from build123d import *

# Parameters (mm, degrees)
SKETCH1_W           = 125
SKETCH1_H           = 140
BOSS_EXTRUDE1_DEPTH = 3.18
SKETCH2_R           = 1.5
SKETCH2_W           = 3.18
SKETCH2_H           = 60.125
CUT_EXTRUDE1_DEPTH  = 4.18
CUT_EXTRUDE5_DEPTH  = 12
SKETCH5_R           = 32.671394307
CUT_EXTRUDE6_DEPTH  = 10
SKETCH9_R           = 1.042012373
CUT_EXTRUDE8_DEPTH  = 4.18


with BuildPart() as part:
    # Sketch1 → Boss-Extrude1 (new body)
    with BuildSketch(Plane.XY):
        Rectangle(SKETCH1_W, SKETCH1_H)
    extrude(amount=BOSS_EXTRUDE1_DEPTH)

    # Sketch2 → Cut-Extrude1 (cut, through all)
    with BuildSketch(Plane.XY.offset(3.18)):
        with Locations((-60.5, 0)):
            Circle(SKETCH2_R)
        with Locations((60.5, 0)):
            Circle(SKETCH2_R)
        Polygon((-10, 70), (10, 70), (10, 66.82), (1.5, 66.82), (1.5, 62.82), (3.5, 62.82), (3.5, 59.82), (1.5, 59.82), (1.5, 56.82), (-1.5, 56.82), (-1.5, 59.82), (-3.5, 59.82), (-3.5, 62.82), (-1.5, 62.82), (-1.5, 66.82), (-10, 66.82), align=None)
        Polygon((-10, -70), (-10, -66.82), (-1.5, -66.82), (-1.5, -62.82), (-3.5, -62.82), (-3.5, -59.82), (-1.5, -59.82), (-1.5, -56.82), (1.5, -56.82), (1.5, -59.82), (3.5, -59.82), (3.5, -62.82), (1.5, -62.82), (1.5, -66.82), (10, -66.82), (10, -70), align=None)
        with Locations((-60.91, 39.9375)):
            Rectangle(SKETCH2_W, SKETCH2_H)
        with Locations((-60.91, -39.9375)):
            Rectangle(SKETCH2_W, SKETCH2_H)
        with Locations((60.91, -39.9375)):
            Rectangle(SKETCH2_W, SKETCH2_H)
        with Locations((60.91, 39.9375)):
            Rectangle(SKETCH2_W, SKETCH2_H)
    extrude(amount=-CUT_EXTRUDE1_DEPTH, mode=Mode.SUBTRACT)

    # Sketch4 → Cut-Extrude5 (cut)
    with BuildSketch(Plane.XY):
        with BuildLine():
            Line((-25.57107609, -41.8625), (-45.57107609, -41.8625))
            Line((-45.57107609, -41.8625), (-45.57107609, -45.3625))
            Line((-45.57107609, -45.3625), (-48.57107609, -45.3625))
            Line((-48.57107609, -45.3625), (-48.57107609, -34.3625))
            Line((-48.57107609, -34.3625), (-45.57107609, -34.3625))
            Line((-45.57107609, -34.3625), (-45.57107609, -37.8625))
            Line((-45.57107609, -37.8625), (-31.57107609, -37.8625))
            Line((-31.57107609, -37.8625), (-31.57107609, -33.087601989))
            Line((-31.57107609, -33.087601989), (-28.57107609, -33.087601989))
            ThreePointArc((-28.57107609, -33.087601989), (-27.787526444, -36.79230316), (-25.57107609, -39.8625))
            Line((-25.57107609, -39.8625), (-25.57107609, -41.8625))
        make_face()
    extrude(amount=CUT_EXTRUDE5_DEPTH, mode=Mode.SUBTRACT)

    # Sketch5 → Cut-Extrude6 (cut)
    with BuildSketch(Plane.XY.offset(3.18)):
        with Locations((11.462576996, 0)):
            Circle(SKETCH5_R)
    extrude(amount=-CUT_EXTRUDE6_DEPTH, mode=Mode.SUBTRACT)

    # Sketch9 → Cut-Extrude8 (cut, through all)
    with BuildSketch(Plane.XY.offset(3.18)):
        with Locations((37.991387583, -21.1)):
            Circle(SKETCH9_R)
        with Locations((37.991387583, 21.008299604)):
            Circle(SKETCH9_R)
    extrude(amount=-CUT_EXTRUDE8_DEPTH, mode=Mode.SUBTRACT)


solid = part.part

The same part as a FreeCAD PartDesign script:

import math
import FreeCAD as App
import Part
import Sketcher
Q = App.Units.Quantity

doc = App.newDocument("Part")
body = doc.addObject("PartDesign::Body", "Body")

sketch1 = body.newObject("Sketcher::SketchObject", "Sketch")
sketch1.AttachmentSupport = (doc.getObject("XY_Plane"), [""])
sketch1.MapMode = "FlatFace"
sketch1.addGeometry([
    Part.LineSegment(App.Vector(-62, 70, 0), App.Vector(-62, -70, 0)),
    Part.LineSegment(App.Vector(-62, -70, 0), App.Vector(62, -70, 0)),
    Part.LineSegment(App.Vector(62, -70, 0), App.Vector(62, 70, 0)),
    Part.LineSegment(App.Vector(62, 70, 0), App.Vector(-62, 70, 0)),
], False)
sketch1.addConstraint([
    Sketcher.Constraint("Coincident", 0, 2, 1, 1),
    Sketcher.Constraint("Coincident", 1, 2, 2, 1),
    Sketcher.Constraint("Coincident", 2, 2, 3, 1),
    Sketcher.Constraint("Coincident", 3, 2, 0, 1),
    Sketcher.Constraint("Vertical", 0),
    Sketcher.Constraint("Horizontal", 1),
    Sketcher.Constraint("Vertical", 2),
    Sketcher.Constraint("Horizontal", 3),
    Sketcher.Constraint("Symmetric", 0, 2, 2, 2, -1, 1),
    Sketcher.Constraint("DistanceX", 1, 1, 1, 2, Q("125 mm")),
    Sketcher.Constraint("DistanceY", 0, 2, 0, 1, Q("140 mm")),
])
pad1 = body.newObject("PartDesign::Pad", "Pad")
pad1.Profile = sketch1
pad1.Length = 3.18

sketch2 = body.newObject("Sketcher::SketchObject", "Sketch001")
sketch2.AttachmentSupport = (doc.getObject("XY_Plane"), [""])
sketch2.MapMode = "FlatFace"
sketch2.AttachmentOffset = App.Placement(App.Vector(0, 0, 3.18), App.Rotation())
sketch2.addGeometry([
    Part.Circle(App.Vector(-60.5, 0, 0), App.Vector(0, 0, 1), 1.5),
    Part.Circle(App.Vector(60.5, 0, 0), App.Vector(0, 0, 1), 1.5),
    Part.LineSegment(App.Vector(10, 70, 0), App.Vector(-10, 70, 0)),
    Part.LineSegment(App.Vector(-10, 70, 0), App.Vector(-10, 66.8, 0)),
    Part.LineSegment(App.Vector(-10, 66.8, 0), App.Vector(-1.5, 66.8, 0)),
    Part.LineSegment(App.Vector(-1.5, 66.8, 0), App.Vector(-1.5, 62.8, 0)),
    Part.LineSegment(App.Vector(-1.5, 62.8, 0), App.Vector(-3.5, 62.8, 0)),
    Part.LineSegment(App.Vector(-3.5, 62.8, 0), App.Vector(-3.5, 59.8, 0)),
    Part.LineSegment(App.Vector(-3.5, 59.8, 0), App.Vector(-1.5, 59.8, 0)),
    Part.LineSegment(App.Vector(-1.5, 59.8, 0), App.Vector(-1.5, 56.8, 0)),
    Part.LineSegment(App.Vector(-1.5, 56.8, 0), App.Vector(1.5, 56.8, 0)),
    Part.LineSegment(App.Vector(1.5, 56.8, 0), App.Vector(1.5, 59.8, 0)),
    Part.LineSegment(App.Vector(1.5, 59.8, 0), App.Vector(3.5, 59.8, 0)),
    Part.LineSegment(App.Vector(3.5, 59.8, 0), App.Vector(3.5, 62.8, 0)),
    Part.LineSegment(App.Vector(3.5, 62.8, 0), App.Vector(1.5, 62.8, 0)),
    Part.LineSegment(App.Vector(1.5, 62.8, 0), App.Vector(1.5, 66.8, 0)),
    Part.LineSegment(App.Vector(1.5, 66.8, 0), App.Vector(10, 66.8, 0)),
    Part.LineSegment(App.Vector(10, 66.8, 0), App.Vector(10, 70, 0)),
    Part.LineSegment(App.Vector(-10, -66.8, 0), App.Vector(-10, -70, 0)),
    Part.LineSegment(App.Vector(-10, -70, 0), App.Vector(10, -70, 0)),
    Part.LineSegment(App.Vector(10, -70, 0), App.Vector(10, -66.8, 0)),
    Part.LineSegment(App.Vector(10, -66.8, 0), App.Vector(1.5, -66.8, 0)),
    Part.LineSegment(App.Vector(1.5, -66.8, 0), App.Vector(1.5, -62.8, 0)),
    Part.LineSegment(App.Vector(1.5, -62.8, 0), App.Vector(3.5, -62.8, 0)),
    Part.LineSegment(App.Vector(3.5, -62.8, 0), App.Vector(3.5, -59.8, 0)),
    Part.LineSegment(App.Vector(3.5, -59.8, 0), App.Vector(1.5, -59.8, 0)),
    Part.LineSegment(App.Vector(1.5, -59.8, 0), App.Vector(1.5, -56.8, 0)),
    Part.LineSegment(App.Vector(1.5, -56.8, 0), App.Vector(-1.5, -56.8, 0)),
    Part.LineSegment(App.Vector(-1.5, -56.8, 0), App.Vector(-1.5, -59.8, 0)),
    Part.LineSegment(App.Vector(-1.5, -59.8, 0), App.Vector(-3.5, -59.8, 0)),
    Part.LineSegment(App.Vector(-3.5, -59.8, 0), App.Vector(-3.5, -62.8, 0)),
    Part.LineSegment(App.Vector(-3.5, -62.8, 0), App.Vector(-1.5, -62.8, 0)),
    Part.LineSegment(App.Vector(-1.5, -62.8, 0), App.Vector(-1.5, -66.8, 0)),
    Part.LineSegment(App.Vector(-1.5, -66.8, 0), App.Vector(-10, -66.8, 0)),
    Part.LineSegment(App.Vector(-62.5, 70, 0), App.Vector(-62.5, 9.9, 0)),
    Part.LineSegment(App.Vector(-62.5, 9.9, 0), App.Vector(-59.3, 9.9, 0)),
    Part.LineSegment(App.Vector(-59.3, 9.9, 0), App.Vector(-59.3, 70, 0)),
    Part.LineSegment(App.Vector(-59.3, 70, 0), App.Vector(-62.5, 70, 0)),
    Part.LineSegment(App.Vector(-62.5, -9.9, 0), App.Vector(-62.5, -70, 0)),
    Part.LineSegment(App.Vector(-62.5, -70, 0), App.Vector(-59.3, -70, 0)),
    Part.LineSegment(App.Vector(-59.3, -70, 0), App.Vector(-59.3, -9.9, 0)),
    Part.LineSegment(App.Vector(-59.3, -9.9, 0), App.Vector(-62.5, -9.9, 0)),
    Part.LineSegment(App.Vector(59.3, -9.9, 0), App.Vector(59.3, -70, 0)),
    Part.LineSegment(App.Vector(59.3, -70, 0), App.Vector(62.5, -70, 0)),
    Part.LineSegment(App.Vector(62.5, -70, 0), App.Vector(62.5, -9.9, 0)),
    Part.LineSegment(App.Vector(62.5, -9.9, 0), App.Vector(59.3, -9.9, 0)),
    Part.LineSegment(App.Vector(59.3, 70, 0), App.Vector(59.3, 9.9, 0)),
    Part.LineSegment(App.Vector(59.3, 9.9, 0), App.Vector(62.5, 9.9, 0)),
    Part.LineSegment(App.Vector(62.5, 9.9, 0), App.Vector(62.5, 70, 0)),
    Part.LineSegment(App.Vector(62.5, 70, 0), App.Vector(59.3, 70, 0)),
], False)
sketch2.addConstraint([
    Sketcher.Constraint("Coincident", 2, 2, 3, 1),
    Sketcher.Constraint("Coincident", 3, 2, 4, 1),
    Sketcher.Constraint("Coincident", 4, 2, 5, 1),
    Sketcher.Constraint("Coincident", 5, 2, 6, 1),
    Sketcher.Constraint("Coincident", 6, 2, 7, 1),
    Sketcher.Constraint("Coincident", 7, 2, 8, 1),
    Sketcher.Constraint("Coincident", 8, 2, 9, 1),
    Sketcher.Constraint("Coincident", 9, 2, 10, 1),
    Sketcher.Constraint("Coincident", 10, 2, 11, 1),
    Sketcher.Constraint("Coincident", 11, 2, 12, 1),
    Sketcher.Constraint("Coincident", 12, 2, 13, 1),
    Sketcher.Constraint("Coincident", 13, 2, 14, 1),
    Sketcher.Constraint("Coincident", 14, 2, 15, 1),
    Sketcher.Constraint("Coincident", 15, 2, 16, 1),
    Sketcher.Constraint("Coincident", 16, 2, 17, 1),
    Sketcher.Constraint("Coincident", 17, 2, 2, 1),
    Sketcher.Constraint("Coincident", 18, 2, 19, 1),
    Sketcher.Constraint("Coincident", 19, 2, 20, 1),
    Sketcher.Constraint("Coincident", 20, 2, 21, 1),
    Sketcher.Constraint("Coincident", 21, 2, 22, 1),
    Sketcher.Constraint("Coincident", 22, 2, 23, 1),
    Sketcher.Constraint("Coincident", 23, 2, 24, 1),
    Sketcher.Constraint("Coincident", 24, 2, 25, 1),
    Sketcher.Constraint("Coincident", 25, 2, 26, 1),
    Sketcher.Constraint("Coincident", 26, 2, 27, 1),
    Sketcher.Constraint("Coincident", 27, 2, 28, 1),
    Sketcher.Constraint("Coincident", 28, 2, 29, 1),
    Sketcher.Constraint("Coincident", 29, 2, 30, 1),
    Sketcher.Constraint("Coincident", 30, 2, 31, 1),
    Sketcher.Constraint("Coincident", 31, 2, 32, 1),
    Sketcher.Constraint("Coincident", 32, 2, 33, 1),
    Sketcher.Constraint("Coincident", 33, 2, 18, 1),
    Sketcher.Constraint("Coincident", 34, 2, 35, 1),
    Sketcher.Constraint("Coincident", 35, 2, 36, 1),
    Sketcher.Constraint("Coincident", 36, 2, 37, 1),
    Sketcher.Constraint("Coincident", 37, 2, 34, 1),
    Sketcher.Constraint("Coincident", 38, 2, 39, 1),
    Sketcher.Constraint("Coincident", 39, 2, 40, 1),
    Sketcher.Constraint("Coincident", 40, 2, 41, 1),
    Sketcher.Constraint("Coincident", 41, 2, 38, 1),
    Sketcher.Constraint("Coincident", 42, 2, 43, 1),
    Sketcher.Constraint("Coincident", 43, 2, 44, 1),
    Sketcher.Constraint("Coincident", 44, 2, 45, 1),
    Sketcher.Constraint("Coincident", 45, 2, 42, 1),
    Sketcher.Constraint("Coincident", 46, 2, 47, 1),
    Sketcher.Constraint("Coincident", 47, 2, 48, 1),
    Sketcher.Constraint("Coincident", 48, 2, 49, 1),
    Sketcher.Constraint("Coincident", 49, 2, 46, 1),
    Sketcher.Constraint("Horizontal", 2),
    Sketcher.Constraint("Vertical", 3),
    Sketcher.Constraint("Horizontal", 4),
    Sketcher.Constraint("Vertical", 5),
    Sketcher.Constraint("Horizontal", 6),
    Sketcher.Constraint("Vertical", 7),
    Sketcher.Constraint("Horizontal", 8),
    Sketcher.Constraint("Vertical", 9),
    Sketcher.Constraint("Horizontal", 10),
    Sketcher.Constraint("Vertical", 11),
    Sketcher.Constraint("Horizontal", 12),
    Sketcher.Constraint("Vertical", 13),
    Sketcher.Constraint("Horizontal", 14),
    Sketcher.Constraint("Vertical", 15),
    Sketcher.Constraint("Horizontal", 16),
    Sketcher.Constraint("Vertical", 17),
    Sketcher.Constraint("Vertical", 18),
    Sketcher.Constraint("Horizontal", 19),
    Sketcher.Constraint("Vertical", 20),
    Sketcher.Constraint("Horizontal", 21),
    Sketcher.Constraint("Vertical", 22),
    Sketcher.Constraint("Horizontal", 23),
    Sketcher.Constraint("Vertical", 24),
    Sketcher.Constraint("Horizontal", 25),
    Sketcher.Constraint("Vertical", 26),
    Sketcher.Constraint("Horizontal", 27),
    Sketcher.Constraint("Vertical", 28),
    Sketcher.Constraint("Horizontal", 29),
    Sketcher.Constraint("Vertical", 30),
    Sketcher.Constraint("Horizontal", 31),
    Sketcher.Constraint("Vertical", 32),
    Sketcher.Constraint("Horizontal", 33),
    Sketcher.Constraint("Vertical", 34),
    Sketcher.Constraint("Horizontal", 35),
    Sketcher.Constraint("Vertical", 36),
    Sketcher.Constraint("Horizontal", 37),
    Sketcher.Constraint("Vertical", 38),
    Sketcher.Constraint("Horizontal", 39),
    Sketcher.Constraint("Vertical", 40),
    Sketcher.Constraint("Horizontal", 41),
    Sketcher.Constraint("Vertical", 42),
    Sketcher.Constraint("Horizontal", 43),
    Sketcher.Constraint("Vertical", 44),
    Sketcher.Constraint("Horizontal", 45),
    Sketcher.Constraint("Vertical", 46),
    Sketcher.Constraint("Horizontal", 47),
    Sketcher.Constraint("Vertical", 48),
    Sketcher.Constraint("Horizontal", 49),
    Sketcher.Constraint("Equal", 0, 1),
    Sketcher.Constraint("Symmetric", 0, 3, 1, 3, -1, 1),
    Sketcher.Constraint("Symmetric", 17, 2, 18, 2, -1, 1),
    Sketcher.Constraint("Symmetric", 3, 2, 20, 2, -1, 1),
    Sketcher.Constraint("Symmetric", 5, 2, 22, 2, -1, 1),
    Sketcher.Constraint("Symmetric", 7, 2, 24, 2, -1, 1),
    Sketcher.Constraint("Symmetric", 9, 2, 26, 2, -1, 1),
    Sketcher.Constraint("Symmetric", 11, 2, 28, 2, -1, 1),
    Sketcher.Constraint("Symmetric", 13, 2, 30, 2, -1, 1),
    Sketcher.Constraint("Symmetric", 15, 2, 32, 2, -1, 1),
    Sketcher.Constraint("Symmetric", 36, 2, 42, 2, -1, 1),
    Sketcher.Constraint("Symmetric", 34, 2, 44, 2, -1, 1),
    Sketcher.Constraint("Symmetric", 40, 2, 46, 2, -1, 1),
    Sketcher.Constraint("Symmetric", 38, 2, 48, 2, -1, 1),
    Sketcher.Constraint("Symmetric", 8, 2, 11, 2, -2),
    Sketcher.Constraint("Symmetric", 6, 2, 13, 2, -2),
    Sketcher.Constraint("Symmetric", 4, 2, 15, 2, -2),
    Sketcher.Constraint("Symmetric", 39, 2, 42, 2, -2),
    Sketcher.Constraint("Symmetric", 41, 2, 44, 2, -2),
    Sketcher.Constraint("PointOnObject", 0, 3, -1),
    Sketcher.Constraint("Horizontal", 17, 2, 36, 2),
    Sketcher.Constraint("Vertical", 5, 2, 8, 2),
    Sketcher.Constraint("Vertical", 3, 2, 18, 2),
    Sketcher.Constraint("Equal", 49, 3),
    Sketcher.Constraint("Equal", 27, 7),
    Sketcher.Constraint("Equal", 7, 9),
    Sketcher.Constraint("Diameter", 0, Q("3 mm")),
    Sketcher.Constraint("DistanceX", 2, 2, 2, 1, Q("20 mm")),
    Sketcher.Constraint("DistanceX", 6, 2, 6, 1, Q("2 mm")),
    Sketcher.Constraint("DistanceX", 10, 1, 10, 2, Q("3 mm")),
    Sketcher.Constraint("DistanceY", 5, 2, 5, 1, Q("4 mm")),
    Sketcher.Constraint("DistanceY", -1, 1, 2, 2, Q("70 mm")),
    Sketcher.Constraint("DistanceX", 0, 3, 1, 3, Q("121 mm")),
    Sketcher.Constraint("DistanceX", 34, 2, 0, 3, Q("2 mm")),
    Sketcher.Constraint("DistanceX", 35, 1, 35, 2, Q("3.18 mm")),
    Sketcher.Constraint("DistanceY", 34, 2, 34, 1, Q("60.125 mm")),
])
pocket1 = body.newObject("PartDesign::Pocket", "Pocket")
pocket1.Profile = sketch2
pocket1.Type = "ThroughAll"

sketch3 = body.newObject("Sketcher::SketchObject", "Sketch002")
sketch3.AttachmentSupport = (doc.getObject("XY_Plane"), [""])
sketch3.MapMode = "FlatFace"
sketch3.addGeometry([
    Part.LineSegment(App.Vector(-45.6, -41.9, 0), App.Vector(-25.6, -41.9, 0)),
    Part.LineSegment(App.Vector(-25.6, -41.9, 0), App.Vector(-25.6, -39.9, 0)),
    Part.ArcOfCircle(Part.Circle(App.Vector(-19.4, -33.1, 0), App.Vector(0, 0, 1), 9.1), math.radians(-180), math.radians(-132)),
    Part.LineSegment(App.Vector(-28.6, -33.1, 0), App.Vector(-31.6, -33.1, 0)),
    Part.LineSegment(App.Vector(-31.6, -33.1, 0), App.Vector(-31.6, -37.9, 0)),
    Part.LineSegment(App.Vector(-31.6, -37.9, 0), App.Vector(-45.6, -37.9, 0)),
    Part.LineSegment(App.Vector(-45.6, -37.9, 0), App.Vector(-45.6, -34.4, 0)),
    Part.LineSegment(App.Vector(-45.6, -34.4, 0), App.Vector(-48.6, -34.4, 0)),
    Part.LineSegment(App.Vector(-48.6, -34.4, 0), App.Vector(-48.6, -45.4, 0)),
    Part.LineSegment(App.Vector(-48.6, -45.4, 0), App.Vector(-45.6, -45.4, 0)),
    Part.LineSegment(App.Vector(-45.6, -45.4, 0), App.Vector(-45.6, -41.9, 0)),
], False)
sketch3.addConstraint([
    Sketcher.Constraint("Coincident", 0, 2, 1, 1),
    Sketcher.Constraint("Coincident", 1, 2, 2, 2),
    Sketcher.Constraint("Coincident", 2, 1, 3, 1),
    Sketcher.Constraint("Coincident", 3, 2, 4, 1),
    Sketcher.Constraint("Coincident", 4, 2, 5, 1),
    Sketcher.Constraint("Coincident", 5, 2, 6, 1),
    Sketcher.Constraint("Coincident", 6, 2, 7, 1),
    Sketcher.Constraint("Coincident", 7, 2, 8, 1),
    Sketcher.Constraint("Coincident", 8, 2, 9, 1),
    Sketcher.Constraint("Coincident", 9, 2, 10, 1),
    Sketcher.Constraint("Coincident", 10, 2, 0, 1),
    Sketcher.Constraint("Horizontal", 0),
    Sketcher.Constraint("Vertical", 1),
    Sketcher.Constraint("Horizontal", 3),
    Sketcher.Constraint("Vertical", 4),
    Sketcher.Constraint("Horizontal", 5),
    Sketcher.Constraint("Vertical", 6),
    Sketcher.Constraint("Horizontal", 7),
    Sketcher.Constraint("Vertical", 8),
    Sketcher.Constraint("Horizontal", 9),
    Sketcher.Constraint("Vertical", 10),
    Sketcher.Constraint("Vertical", 6, 2, 9, 2),
    Sketcher.Constraint("Equal", 3, 7),
    Sketcher.Constraint("Equal", 6, 10),
    Sketcher.Constraint("DistanceX", 0, 1, 0, 2, Q("20 mm")),
    Sketcher.Constraint("DistanceX", 3, 2, 3, 1, Q("3 mm")),
    Sketcher.Constraint("DistanceX", 5, 2, 5, 1, Q("14 mm")),
    Sketcher.Constraint("DistanceY", 1, 1, 1, 2, Q("2 mm")),
    Sketcher.Constraint("DistanceY", 8, 2, 8, 1, Q("11 mm")),
    Sketcher.Constraint("DistanceY", 6, 1, 6, 2, Q("3.5 mm")),
    Sketcher.Constraint("DistanceY", 4, 2, 4, 1, Q("4.774898 mm")),
    Sketcher.Constraint("Radius", 2, Q("9.149874 mm")),
    Sketcher.Constraint("DistanceY", 2, 3, -1, 1, Q("33.087602 mm")),
    Sketcher.Constraint("DistanceX", 2, 3, -1, 1, Q("19.421202 mm")),
])
pocket2 = body.newObject("PartDesign::Pocket", "Pocket001")
pocket2.Profile = sketch3
pocket2.Length = 12
pocket2.Reversed = True

sketch4 = body.newObject("Sketcher::SketchObject", "Sketch003")
sketch4.AttachmentSupport = (doc.getObject("XY_Plane"), [""])
sketch4.MapMode = "FlatFace"
sketch4.AttachmentOffset = App.Placement(App.Vector(0, 0, 3.18), App.Rotation())
sketch4.addGeometry(Part.Circle(App.Vector(11, 0, 0), App.Vector(0, 0, 1), 33), False)
sketch4.addConstraint([
    Sketcher.Constraint("PointOnObject", 0, 3, -1),
    Sketcher.Constraint("Diameter", 0, Q("65.342789 mm")),
    Sketcher.Constraint("DistanceX", -1, 1, 0, 3, Q("11.462577 mm")),
])
pocket3 = body.newObject("PartDesign::Pocket", "Pocket002")
pocket3.Profile = sketch4
pocket3.Length = 10

sketch5 = body.newObject("Sketcher::SketchObject", "Sketch004")
sketch5.AttachmentSupport = (doc.getObject("XY_Plane"), [""])
sketch5.MapMode = "FlatFace"
sketch5.AttachmentOffset = App.Placement(App.Vector(0, 0, 3.18), App.Rotation())
sketch5.addGeometry([
    Part.Circle(App.Vector(38, -21.1, 0), App.Vector(0, 0, 1), 1),
    Part.Circle(App.Vector(38, 21, 0), App.Vector(0, 0, 1), 1),
], False)
sketch5.addConstraint([
    Sketcher.Constraint("Equal", 0, 1),
    Sketcher.Constraint("Vertical", 0, 3, 1, 3),
    Sketcher.Constraint("DistanceY", 0, 3, -1, 1, Q("21.1 mm")),
    Sketcher.Constraint("Diameter", 0, Q("2.084025 mm")),
    Sketcher.Constraint("DistanceY", -1, 1, 1, 3, Q("21.0083 mm")),
    Sketcher.Constraint("DistanceX", -1, 1, 0, 3, Q("37.991388 mm")),
])
pocket4 = body.newObject("PartDesign::Pocket", "Pocket003")
pocket4.Profile = sketch5
pocket4.Type = "ThroughAll"

doc.recompute()
